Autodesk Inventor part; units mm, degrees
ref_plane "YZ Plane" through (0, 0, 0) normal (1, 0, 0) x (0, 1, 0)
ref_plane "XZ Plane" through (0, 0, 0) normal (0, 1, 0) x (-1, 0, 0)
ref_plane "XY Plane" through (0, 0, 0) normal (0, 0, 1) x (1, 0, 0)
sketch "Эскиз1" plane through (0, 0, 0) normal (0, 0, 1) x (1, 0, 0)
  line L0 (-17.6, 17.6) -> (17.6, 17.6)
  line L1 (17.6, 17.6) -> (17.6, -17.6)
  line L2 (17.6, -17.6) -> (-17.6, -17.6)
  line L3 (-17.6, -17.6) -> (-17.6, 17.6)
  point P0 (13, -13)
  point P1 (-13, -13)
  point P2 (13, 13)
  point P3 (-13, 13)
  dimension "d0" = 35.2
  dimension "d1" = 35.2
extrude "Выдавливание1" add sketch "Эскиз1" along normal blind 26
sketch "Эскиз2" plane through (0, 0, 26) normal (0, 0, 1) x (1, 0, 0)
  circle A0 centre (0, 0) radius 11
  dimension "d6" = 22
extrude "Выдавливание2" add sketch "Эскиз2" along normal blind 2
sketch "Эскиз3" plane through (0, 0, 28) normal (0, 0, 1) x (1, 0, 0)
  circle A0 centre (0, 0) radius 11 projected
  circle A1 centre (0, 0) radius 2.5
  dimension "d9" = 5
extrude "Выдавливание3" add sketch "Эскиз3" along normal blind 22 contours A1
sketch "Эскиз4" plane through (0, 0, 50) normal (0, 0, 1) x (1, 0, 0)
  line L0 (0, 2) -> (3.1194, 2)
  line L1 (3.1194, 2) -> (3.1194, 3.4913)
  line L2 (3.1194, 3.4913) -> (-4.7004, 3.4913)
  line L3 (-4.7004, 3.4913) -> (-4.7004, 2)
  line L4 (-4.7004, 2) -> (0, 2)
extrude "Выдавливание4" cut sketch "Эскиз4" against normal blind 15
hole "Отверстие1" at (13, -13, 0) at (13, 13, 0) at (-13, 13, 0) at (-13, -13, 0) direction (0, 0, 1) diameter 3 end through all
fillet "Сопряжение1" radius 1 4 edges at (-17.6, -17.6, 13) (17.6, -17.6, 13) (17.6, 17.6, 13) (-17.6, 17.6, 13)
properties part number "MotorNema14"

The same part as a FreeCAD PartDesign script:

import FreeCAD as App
import Part
import Sketcher
Q = App.Units.Quantity


def edges_at(feature, points):
    """Names of the edges that pass closest to the given points."""
    edges = feature.Shape.Edges
    near = lambda p: min(range(len(edges)), key=lambda i: edges[i].distToShape(Part.Vertex(*p))[0])
    return sorted({f"Edge{near(p) + 1}" for p in points})


def add_polygon(sketch, points):
    """Adds a closed chain of lines whose ends are joined by coincident constraints."""
    first, n = sketch.GeometryCount, len(points)
    for a, b in zip(points, points[1:] + points[:1]):
        sketch.addGeometry(Part.LineSegment(App.Vector(*a, 0), App.Vector(*b, 0)), False)
    for i in range(n):
        sketch.addConstraint(Sketcher.Constraint("Coincident", first + i, 2, first + (i + 1) % n, 1))

doc = App.newDocument("Part")
body = doc.addObject("PartDesign::Body", "Body")

# Sketch on XY plane
sketch1 = doc.addObject("Sketcher::SketchObject", "Sketch")
body.addObject(sketch1)
sketch1.AttachmentSupport = (doc.XY_Plane, [""])
sketch1.MapMode = "FlatFace"
add_polygon(sketch1, [(18, 18), (-18, 18), (-18, -18), (18, -18)])  # lines 0-3
sketch1.addConstraint([
    Sketcher.Constraint("Horizontal", 0),
    Sketcher.Constraint("Vertical", 1),
    Sketcher.Constraint("Horizontal", 2),
    Sketcher.Constraint("Vertical", 3),
    Sketcher.Constraint("Symmetric", 0, 2, 2, 2, -1, 1),
    Sketcher.Constraint("Equal", 2, 1),
    Sketcher.Constraint("DistanceX", 0, 2, 0, 1, Q("35.2 mm")),
])
pad1 = doc.addObject("PartDesign::Pad", "Pad")
body.addObject(pad1)
pad1.Profile = sketch1
pad1.Length = 26

# Sketch on XY plane
sketch2 = doc.addObject("Sketcher::SketchObject", "Sketch001")
body.addObject(sketch2)
sketch2.AttachmentSupport = (doc.XY_Plane, [""])
sketch2.MapMode = "FlatFace"
sketch2.AttachmentOffset = App.Placement(App.Vector(0, 0, 26), App.Rotation())
sketch2.addGeometry(Part.Circle(App.Vector(0, 0, 0), App.Vector(0, 0, 1), 11), False)
sketch2.addConstraint([
    Sketcher.Constraint("Coincident", 0, 3, -1, 1),
    Sketcher.Constraint("Diameter", 0, Q("22 mm")),
])
pad2 = doc.addObject("PartDesign::Pad", "Pad001")
body.addObject(pad2)
pad2.Profile = sketch2
pad2.Length = 2

# Sketch on XY plane
sketch3 = doc.addObject("Sketcher::SketchObject", "Sketch002")
body.addObject(sketch3)
sketch3.AttachmentSupport = (doc.XY_Plane, [""])
sketch3.MapMode = "FlatFace"
sketch3.AttachmentOffset = App.Placement(App.Vector(0, 0, 28), App.Rotation())
sketch3.addGeometry(Part.Circle(App.Vector(0, 0, 0), App.Vector(0, 0, 1), 2.5), False)
sketch3.addConstraint([
    Sketcher.Constraint("Coincident", 0, 3, -1, 1),
    Sketcher.Constraint("Diameter", 0, Q("5 mm")),
])
pad3 = doc.addObject("PartDesign::Pad", "Pad002")
body.addObject(pad3)
pad3.Profile = sketch3
pad3.Length = 22

# Sketch on XY plane
sketch4 = doc.addObject("Sketcher::SketchObject", "Sketch003")
body.addObject(sketch4)
sketch4.AttachmentSupport = (doc.XY_Plane, [""])
sketch4.MapMode = "FlatFace"
sketch4.AttachmentOffset = App.Placement(App.Vector(0, 0, 50), App.Rotation())
add_polygon(sketch4, [(-4.7, 2), (3.1, 2), (3.1, 3.5), (-4.7, 3.5)])  # lines 0-3
sketch4.addConstraint([
    Sketcher.Constraint("Horizontal", 0),
    Sketcher.Constraint("Vertical", 1),
    Sketcher.Constraint("Horizontal", 2),
    Sketcher.Constraint("Vertical", 3),
    Sketcher.Constraint("DistanceY", -1, 1, 0, 2, Q("2 mm")),
    Sketcher.Constraint("DistanceX", 0, 1, 0, 2, Q("7.8198 mm")),
    Sketcher.Constraint("DistanceY", 1, 1, 1, 2, Q("1.4913 mm")),
    Sketcher.Constraint("DistanceX", -1, 1, 0, 2, Q("3.1194 mm")),
])
pocket1 = doc.addObject("PartDesign::Pocket", "Pocket")
body.addObject(pocket1)
pocket1.Profile = sketch4
pocket1.Length = 15

# Sketch on XY plane
sketch5 = doc.addObject("Sketcher::SketchObject", "Sketch004")
body.addObject(sketch5)
sketch5.AttachmentSupport = (doc.XY_Plane, [""])
sketch5.MapMode = "FlatFace"
sketch5.addGeometry([
    Part.Circle(App.Vector(13, -13, 0), App.Vector(0, 0, 1), 1.5),
    Part.Circle(App.Vector(13, 13, 0), App.Vector(0, 0, 1), 1.5),
    Part.Circle(App.Vector(-13, 13, 0), App.Vector(0, 0, 1), 1.5),
    Part.Circle(App.Vector(-13, -13, 0), App.Vector(0, 0, 1), 1.5),
], False)
sketch5.addConstraint([
    Sketcher.Constraint("Equal", 0, 1),
    Sketcher.Constraint("Equal", 1, 2),
    Sketcher.Constraint("Equal", 2, 3),
    Sketcher.Constraint("Symmetric", 0, 3, 2, 3, -1, 1),
    Sketcher.Constraint("Symmetric", 1, 3, 3, 3, -1, 1),
    Sketcher.Constraint("Symmetric", 1, 3, 2, 3, -2),
    Sketcher.Constraint("Diameter", 0, Q("3 mm")),
    Sketcher.Constraint("DistanceX", -1, 1, 0, 3, Q("13 mm")),
    Sketcher.Constraint("DistanceY", 0, 3, -1, 1, Q("13 mm")),
])
doc.recompute()
hole = doc.addObject("PartDesign::Hole", "Hole")
body.addObject(hole)
hole.Profile = sketch5
hole.ThreadType = "None"
hole.Diameter = 3
hole.DepthType = "ThroughAll"
hole.Reversed = True
doc.recompute()

fillet = doc.addObject("PartDesign::Fillet", "Fillet")
body.addObject(fillet)
fillet.Base = (hole, edges_at(hole, [
    (-17.6, -17.6, 13),
    (17.6, -17.6, 13),
    (17.6, 17.6, 13),
    (-17.6, 17.6, 13),
]))
fillet.Radius = 1

doc.recompute()
